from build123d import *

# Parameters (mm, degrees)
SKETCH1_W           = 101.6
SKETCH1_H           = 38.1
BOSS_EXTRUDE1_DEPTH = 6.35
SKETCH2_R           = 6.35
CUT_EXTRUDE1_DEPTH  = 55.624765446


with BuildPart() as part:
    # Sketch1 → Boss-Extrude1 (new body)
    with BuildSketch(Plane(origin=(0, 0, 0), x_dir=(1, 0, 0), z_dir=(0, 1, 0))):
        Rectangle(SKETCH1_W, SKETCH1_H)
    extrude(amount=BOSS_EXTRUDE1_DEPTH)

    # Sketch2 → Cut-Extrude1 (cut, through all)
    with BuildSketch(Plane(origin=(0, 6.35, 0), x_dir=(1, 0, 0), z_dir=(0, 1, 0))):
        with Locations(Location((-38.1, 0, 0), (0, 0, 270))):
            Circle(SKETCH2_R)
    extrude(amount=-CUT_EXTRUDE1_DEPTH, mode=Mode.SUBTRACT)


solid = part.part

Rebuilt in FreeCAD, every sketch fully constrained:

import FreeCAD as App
import Part
import Sketcher
from FreeCAD import Vector
Q = App.Units.Quantity


def add_polygon(sketch, points):
    """Adds a closed chain of lines whose ends are joined by coincident constraints."""
    first, n = sketch.GeometryCount, len(points)
    for a, b in zip(points, points[1:] + points[:1]):
        sketch.addGeometry(Part.LineSegment(App.Vector(*a, 0), App.Vector(*b, 0)), False)
    for i in range(n):
        sketch.addConstraint(Sketcher.Constraint("Coincident", first + i, 2, first + (i + 1) % n, 1))

doc = App.newDocument("Part")
body = doc.addObject("PartDesign::Body", "Body")

sketch1 = doc.addObject("Sketcher::SketchObject", "Sketch")
body.addObject(sketch1)
sketch1.AttachmentSupport = (doc.XZ_Plane, [""])
sketch1.MapMode = "FlatFace"
add_polygon(sketch1, [(-51, -19), (-51, 19), (51, 19), (51, -19)])
sketch1.addConstraint(Sketcher.Constraint("Vertical", 0))
sketch1.addConstraint(Sketcher.Constraint("Horizontal", 1))
sketch1.addConstraint(Sketcher.Constraint("Vertical", 2))
sketch1.addConstraint(Sketcher.Constraint("Horizontal", 3))
sketch1.addConstraint(Sketcher.Constraint("Symmetric", 0, 2, 2, 2, -1, 1))
sketch1.addConstraint(Sketcher.Constraint("DistanceX", 1, 1, 1, 2, Q("4 in")))
sketch1.addConstraint(Sketcher.Constraint("DistanceY", 0, 1, 0, 2, Q("1.5 in")))
pad1 = doc.addObject("PartDesign::Pad", "Pad")
body.addObject(pad1)
pad1.Profile = sketch1
pad1.Length = Q("0.25 in")
pad1.Reversed = True

sketch2 = doc.addObject("Sketcher::SketchObject", "Sketch001")
body.addObject(sketch2)
sketch2.AttachmentSupport = (doc.XZ_Plane, [""])
sketch2.MapMode = "FlatFace"
sketch2.AttachmentOffset = App.Placement(Vector(0, 0, -0.25 * 25.4), App.Rotation())
sketch2.addGeometry(Part.Circle(Vector(-38, 0, 0), Vector(0, 0, 1), 6), False)
sketch2.addConstraint(Sketcher.Constraint("PointOnObject", 0, 3, -1))
sketch2.addConstraint(Sketcher.Constraint("Diameter", 0, Q("0.5 in")))
sketch2.addConstraint(Sketcher.Constraint("DistanceX", 0, 3, -1, 1, Q("1.5 in")))
pocket1 = doc.addObject("PartDesign::Pocket", "Pocket")
body.addObject(pocket1)
pocket1.Profile = sketch2
pocket1.Type = "ThroughAll"
pocket1.Reversed = True

doc.recompute()
